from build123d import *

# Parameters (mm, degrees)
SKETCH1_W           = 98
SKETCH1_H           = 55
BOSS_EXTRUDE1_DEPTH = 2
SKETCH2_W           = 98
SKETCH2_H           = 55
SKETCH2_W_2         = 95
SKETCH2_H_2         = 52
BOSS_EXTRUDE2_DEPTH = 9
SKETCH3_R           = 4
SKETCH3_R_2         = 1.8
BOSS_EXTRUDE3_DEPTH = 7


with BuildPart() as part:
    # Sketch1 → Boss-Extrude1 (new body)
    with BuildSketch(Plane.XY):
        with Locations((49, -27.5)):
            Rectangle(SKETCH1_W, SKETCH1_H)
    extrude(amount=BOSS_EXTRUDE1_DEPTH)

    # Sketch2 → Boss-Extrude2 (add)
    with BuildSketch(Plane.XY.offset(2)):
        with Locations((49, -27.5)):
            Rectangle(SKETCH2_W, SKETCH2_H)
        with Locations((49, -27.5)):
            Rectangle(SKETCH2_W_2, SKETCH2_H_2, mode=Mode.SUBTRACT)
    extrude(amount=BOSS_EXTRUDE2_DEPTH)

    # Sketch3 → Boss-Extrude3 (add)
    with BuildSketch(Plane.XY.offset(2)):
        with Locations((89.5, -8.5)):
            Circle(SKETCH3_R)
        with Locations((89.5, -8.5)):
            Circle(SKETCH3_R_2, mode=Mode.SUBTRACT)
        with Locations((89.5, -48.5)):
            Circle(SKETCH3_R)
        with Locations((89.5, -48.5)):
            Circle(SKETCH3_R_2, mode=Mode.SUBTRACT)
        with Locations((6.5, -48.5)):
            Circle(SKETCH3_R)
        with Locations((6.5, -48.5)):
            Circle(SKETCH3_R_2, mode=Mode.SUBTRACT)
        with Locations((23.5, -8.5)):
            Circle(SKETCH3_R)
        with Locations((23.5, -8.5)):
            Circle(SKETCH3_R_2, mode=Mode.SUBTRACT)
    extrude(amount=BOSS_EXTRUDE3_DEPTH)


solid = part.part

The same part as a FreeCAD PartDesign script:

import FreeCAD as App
import Part
import Sketcher
from FreeCAD import Vector


def add_polygon(sketch, points):
    """Adds a closed chain of lines whose ends are joined by coincident constraints."""
    first, n = sketch.GeometryCount, len(points)
    for a, b in zip(points, points[1:] + points[:1]):
        sketch.addGeometry(Part.LineSegment(App.Vector(*a, 0), App.Vector(*b, 0)), False)
    for i in range(n):
        sketch.addConstraint(Sketcher.Constraint("Coincident", first + i, 2, first + (i + 1) % n, 1))

doc = App.newDocument("Part")
body = doc.addObject("PartDesign::Body", "Body")

sketch1 = body.newObject("Sketcher::SketchObject", "Sketch")
sketch1.AttachmentSupport = (doc.getObject("XY_Plane"), [""])
sketch1.MapMode = "FlatFace"
add_polygon(sketch1, [(0, 0), (0, -55), (98, -55), (98, 0)])
sketch1.addConstraint(Sketcher.Constraint("Vertical", 0))
sketch1.addConstraint(Sketcher.Constraint("Horizontal", 1))
sketch1.addConstraint(Sketcher.Constraint("Vertical", 2))
sketch1.addConstraint(Sketcher.Constraint("Horizontal", 3))
sketch1.addConstraint(Sketcher.Constraint("Coincident", 3, 2, -1, 1))
sketch1.addConstraint(Sketcher.Constraint("DistanceX", 1, 1, 1, 2, 98.0))
sketch1.addConstraint(Sketcher.Constraint("DistanceY", 0, 2, 0, 1, 55.0))
pad1 = body.newObject("PartDesign::Pad", "Pad")
pad1.Profile = sketch1
pad1.Length = 2

sketch2 = body.newObject("Sketcher::SketchObject", "Sketch001")
sketch2.AttachmentSupport = (doc.getObject("XY_Plane"), [""])
sketch2.MapMode = "FlatFace"
sketch2.AttachmentOffset = App.Placement(Vector(0, 0, 2), App.Rotation())
add_polygon(sketch2, [(0, 0), (0, -55), (98, -55), (98, 0)])
add_polygon(sketch2, [(96.5, -53.5), (1.5, -53.5), (1.5, -1.5), (96.5, -1.5)])
sketch2.addConstraint(Sketcher.Constraint("Vertical", 0))
sketch2.addConstraint(Sketcher.Constraint("Horizontal", 1))
sketch2.addConstraint(Sketcher.Constraint("Vertical", 2))
sketch2.addConstraint(Sketcher.Constraint("Horizontal", 3))
sketch2.addConstraint(Sketcher.Constraint("Horizontal", 4))
sketch2.addConstraint(Sketcher.Constraint("Vertical", 5))
sketch2.addConstraint(Sketcher.Constraint("Horizontal", 6))
sketch2.addConstraint(Sketcher.Constraint("Vertical", 7))
sketch2.addConstraint(Sketcher.Constraint("Coincident", 3, 2, -1, 1))
sketch2.addConstraint(Sketcher.Constraint("DistanceX", 1, 1, 1, 2, 98.0))
sketch2.addConstraint(Sketcher.Constraint("DistanceX", 4, 2, 4, 1, 95.0))
sketch2.addConstraint(Sketcher.Constraint("DistanceY", 0, 2, 0, 1, 55.0))
sketch2.addConstraint(Sketcher.Constraint("DistanceY", 5, 1, 5, 2, 52.0))
sketch2.addConstraint(Sketcher.Constraint("DistanceX", -1, 1, 4, 2, 1.5))
sketch2.addConstraint(Sketcher.Constraint("DistanceY", 4, 2, -1, 1, 53.5))
pad2 = body.newObject("PartDesign::Pad", "Pad001")
pad2.Profile = sketch2
pad2.Length = 9

sketch3 = body.newObject("Sketcher::SketchObject", "Sketch002")
sketch3.AttachmentSupport = (doc.getObject("XY_Plane"), [""])
sketch3.MapMode = "FlatFace"
sketch3.AttachmentOffset = App.Placement(Vector(0, 0, 2), App.Rotation())
sketch3.addGeometry(Part.Circle(Vector(89.5, -8.5, 0), Vector(0, 0, 1), 4), False)
sketch3.addGeometry(Part.Circle(Vector(89.5, -8.5, 0), Vector(0, 0, 1), 1.8), False)
sketch3.addGeometry(Part.Circle(Vector(89.5, -48.5, 0), Vector(0, 0, 1), 4), False)
sketch3.addGeometry(Part.Circle(Vector(89.5, -48.5, 0), Vector(0, 0, 1), 1.8), False)
sketch3.addGeometry(Part.Circle(Vector(6.5, -48.5, 0), Vector(0, 0, 1), 4), False)
sketch3.addGeometry(Part.Circle(Vector(6.5, -48.5, 0), Vector(0, 0, 1), 1.8), False)
sketch3.addGeometry(Part.Circle(Vector(23.5, -8.5, 0), Vector(0, 0, 1), 4), False)
sketch3.addGeometry(Part.Circle(Vector(23.5, -8.5, 0), Vector(0, 0, 1), 1.8), False)
sketch3.addConstraint(Sketcher.Constraint("Coincident", 1, 3, 0, 3))
sketch3.addConstraint(Sketcher.Constraint("Coincident", 3, 3, 2, 3))
sketch3.addConstraint(Sketcher.Constraint("Coincident", 5, 3, 4, 3))
sketch3.addConstraint(Sketcher.Constraint("Coincident", 7, 3, 6, 3))
sketch3.addConstraint(Sketcher.Constraint("Equal", 0, 2))
sketch3.addConstraint(Sketcher.Constraint("Equal", 1, 3))
sketch3.addConstraint(Sketcher.Constraint("Equal", 2, 4))
sketch3.addConstraint(Sketcher.Constraint("Equal", 3, 5))
sketch3.addConstraint(Sketcher.Constraint("Equal", 4, 6))
sketch3.addConstraint(Sketcher.Constraint("Equal", 5, 7))
sketch3.addConstraint(Sketcher.Constraint("Horizontal", 3, 3, 4, 3))
sketch3.addConstraint(Sketcher.Constraint("Horizontal", 1, 3, 6, 3))
sketch3.addConstraint(Sketcher.Constraint("Vertical", 1, 3, 2, 3))
sketch3.addConstraint(Sketcher.Constraint("Diameter", 0, 8.0))
sketch3.addConstraint(Sketcher.Constraint("Diameter", 1, 3.6))
sketch3.addConstraint(Sketcher.Constraint("DistanceY", 2, 3, 0, 3, 40.0))
sketch3.addConstraint(Sketcher.Constraint("DistanceX", 4, 3, 2, 3, 83.0))
sketch3.addConstraint(Sketcher.Constraint("DistanceX", 4, 3, 6, 3, 17.0))
sketch3.addConstraint(Sketcher.Constraint("DistanceX", -1, 1, 0, 3, 89.5))
sketch3.addConstraint(Sketcher.Constraint("DistanceY", 0, 3, -1, 1, 8.5))
pad3 = body.newObject("PartDesign::Pad", "Pad002")
pad3.Profile = sketch3
pad3.Length = 7

doc.recompute()
